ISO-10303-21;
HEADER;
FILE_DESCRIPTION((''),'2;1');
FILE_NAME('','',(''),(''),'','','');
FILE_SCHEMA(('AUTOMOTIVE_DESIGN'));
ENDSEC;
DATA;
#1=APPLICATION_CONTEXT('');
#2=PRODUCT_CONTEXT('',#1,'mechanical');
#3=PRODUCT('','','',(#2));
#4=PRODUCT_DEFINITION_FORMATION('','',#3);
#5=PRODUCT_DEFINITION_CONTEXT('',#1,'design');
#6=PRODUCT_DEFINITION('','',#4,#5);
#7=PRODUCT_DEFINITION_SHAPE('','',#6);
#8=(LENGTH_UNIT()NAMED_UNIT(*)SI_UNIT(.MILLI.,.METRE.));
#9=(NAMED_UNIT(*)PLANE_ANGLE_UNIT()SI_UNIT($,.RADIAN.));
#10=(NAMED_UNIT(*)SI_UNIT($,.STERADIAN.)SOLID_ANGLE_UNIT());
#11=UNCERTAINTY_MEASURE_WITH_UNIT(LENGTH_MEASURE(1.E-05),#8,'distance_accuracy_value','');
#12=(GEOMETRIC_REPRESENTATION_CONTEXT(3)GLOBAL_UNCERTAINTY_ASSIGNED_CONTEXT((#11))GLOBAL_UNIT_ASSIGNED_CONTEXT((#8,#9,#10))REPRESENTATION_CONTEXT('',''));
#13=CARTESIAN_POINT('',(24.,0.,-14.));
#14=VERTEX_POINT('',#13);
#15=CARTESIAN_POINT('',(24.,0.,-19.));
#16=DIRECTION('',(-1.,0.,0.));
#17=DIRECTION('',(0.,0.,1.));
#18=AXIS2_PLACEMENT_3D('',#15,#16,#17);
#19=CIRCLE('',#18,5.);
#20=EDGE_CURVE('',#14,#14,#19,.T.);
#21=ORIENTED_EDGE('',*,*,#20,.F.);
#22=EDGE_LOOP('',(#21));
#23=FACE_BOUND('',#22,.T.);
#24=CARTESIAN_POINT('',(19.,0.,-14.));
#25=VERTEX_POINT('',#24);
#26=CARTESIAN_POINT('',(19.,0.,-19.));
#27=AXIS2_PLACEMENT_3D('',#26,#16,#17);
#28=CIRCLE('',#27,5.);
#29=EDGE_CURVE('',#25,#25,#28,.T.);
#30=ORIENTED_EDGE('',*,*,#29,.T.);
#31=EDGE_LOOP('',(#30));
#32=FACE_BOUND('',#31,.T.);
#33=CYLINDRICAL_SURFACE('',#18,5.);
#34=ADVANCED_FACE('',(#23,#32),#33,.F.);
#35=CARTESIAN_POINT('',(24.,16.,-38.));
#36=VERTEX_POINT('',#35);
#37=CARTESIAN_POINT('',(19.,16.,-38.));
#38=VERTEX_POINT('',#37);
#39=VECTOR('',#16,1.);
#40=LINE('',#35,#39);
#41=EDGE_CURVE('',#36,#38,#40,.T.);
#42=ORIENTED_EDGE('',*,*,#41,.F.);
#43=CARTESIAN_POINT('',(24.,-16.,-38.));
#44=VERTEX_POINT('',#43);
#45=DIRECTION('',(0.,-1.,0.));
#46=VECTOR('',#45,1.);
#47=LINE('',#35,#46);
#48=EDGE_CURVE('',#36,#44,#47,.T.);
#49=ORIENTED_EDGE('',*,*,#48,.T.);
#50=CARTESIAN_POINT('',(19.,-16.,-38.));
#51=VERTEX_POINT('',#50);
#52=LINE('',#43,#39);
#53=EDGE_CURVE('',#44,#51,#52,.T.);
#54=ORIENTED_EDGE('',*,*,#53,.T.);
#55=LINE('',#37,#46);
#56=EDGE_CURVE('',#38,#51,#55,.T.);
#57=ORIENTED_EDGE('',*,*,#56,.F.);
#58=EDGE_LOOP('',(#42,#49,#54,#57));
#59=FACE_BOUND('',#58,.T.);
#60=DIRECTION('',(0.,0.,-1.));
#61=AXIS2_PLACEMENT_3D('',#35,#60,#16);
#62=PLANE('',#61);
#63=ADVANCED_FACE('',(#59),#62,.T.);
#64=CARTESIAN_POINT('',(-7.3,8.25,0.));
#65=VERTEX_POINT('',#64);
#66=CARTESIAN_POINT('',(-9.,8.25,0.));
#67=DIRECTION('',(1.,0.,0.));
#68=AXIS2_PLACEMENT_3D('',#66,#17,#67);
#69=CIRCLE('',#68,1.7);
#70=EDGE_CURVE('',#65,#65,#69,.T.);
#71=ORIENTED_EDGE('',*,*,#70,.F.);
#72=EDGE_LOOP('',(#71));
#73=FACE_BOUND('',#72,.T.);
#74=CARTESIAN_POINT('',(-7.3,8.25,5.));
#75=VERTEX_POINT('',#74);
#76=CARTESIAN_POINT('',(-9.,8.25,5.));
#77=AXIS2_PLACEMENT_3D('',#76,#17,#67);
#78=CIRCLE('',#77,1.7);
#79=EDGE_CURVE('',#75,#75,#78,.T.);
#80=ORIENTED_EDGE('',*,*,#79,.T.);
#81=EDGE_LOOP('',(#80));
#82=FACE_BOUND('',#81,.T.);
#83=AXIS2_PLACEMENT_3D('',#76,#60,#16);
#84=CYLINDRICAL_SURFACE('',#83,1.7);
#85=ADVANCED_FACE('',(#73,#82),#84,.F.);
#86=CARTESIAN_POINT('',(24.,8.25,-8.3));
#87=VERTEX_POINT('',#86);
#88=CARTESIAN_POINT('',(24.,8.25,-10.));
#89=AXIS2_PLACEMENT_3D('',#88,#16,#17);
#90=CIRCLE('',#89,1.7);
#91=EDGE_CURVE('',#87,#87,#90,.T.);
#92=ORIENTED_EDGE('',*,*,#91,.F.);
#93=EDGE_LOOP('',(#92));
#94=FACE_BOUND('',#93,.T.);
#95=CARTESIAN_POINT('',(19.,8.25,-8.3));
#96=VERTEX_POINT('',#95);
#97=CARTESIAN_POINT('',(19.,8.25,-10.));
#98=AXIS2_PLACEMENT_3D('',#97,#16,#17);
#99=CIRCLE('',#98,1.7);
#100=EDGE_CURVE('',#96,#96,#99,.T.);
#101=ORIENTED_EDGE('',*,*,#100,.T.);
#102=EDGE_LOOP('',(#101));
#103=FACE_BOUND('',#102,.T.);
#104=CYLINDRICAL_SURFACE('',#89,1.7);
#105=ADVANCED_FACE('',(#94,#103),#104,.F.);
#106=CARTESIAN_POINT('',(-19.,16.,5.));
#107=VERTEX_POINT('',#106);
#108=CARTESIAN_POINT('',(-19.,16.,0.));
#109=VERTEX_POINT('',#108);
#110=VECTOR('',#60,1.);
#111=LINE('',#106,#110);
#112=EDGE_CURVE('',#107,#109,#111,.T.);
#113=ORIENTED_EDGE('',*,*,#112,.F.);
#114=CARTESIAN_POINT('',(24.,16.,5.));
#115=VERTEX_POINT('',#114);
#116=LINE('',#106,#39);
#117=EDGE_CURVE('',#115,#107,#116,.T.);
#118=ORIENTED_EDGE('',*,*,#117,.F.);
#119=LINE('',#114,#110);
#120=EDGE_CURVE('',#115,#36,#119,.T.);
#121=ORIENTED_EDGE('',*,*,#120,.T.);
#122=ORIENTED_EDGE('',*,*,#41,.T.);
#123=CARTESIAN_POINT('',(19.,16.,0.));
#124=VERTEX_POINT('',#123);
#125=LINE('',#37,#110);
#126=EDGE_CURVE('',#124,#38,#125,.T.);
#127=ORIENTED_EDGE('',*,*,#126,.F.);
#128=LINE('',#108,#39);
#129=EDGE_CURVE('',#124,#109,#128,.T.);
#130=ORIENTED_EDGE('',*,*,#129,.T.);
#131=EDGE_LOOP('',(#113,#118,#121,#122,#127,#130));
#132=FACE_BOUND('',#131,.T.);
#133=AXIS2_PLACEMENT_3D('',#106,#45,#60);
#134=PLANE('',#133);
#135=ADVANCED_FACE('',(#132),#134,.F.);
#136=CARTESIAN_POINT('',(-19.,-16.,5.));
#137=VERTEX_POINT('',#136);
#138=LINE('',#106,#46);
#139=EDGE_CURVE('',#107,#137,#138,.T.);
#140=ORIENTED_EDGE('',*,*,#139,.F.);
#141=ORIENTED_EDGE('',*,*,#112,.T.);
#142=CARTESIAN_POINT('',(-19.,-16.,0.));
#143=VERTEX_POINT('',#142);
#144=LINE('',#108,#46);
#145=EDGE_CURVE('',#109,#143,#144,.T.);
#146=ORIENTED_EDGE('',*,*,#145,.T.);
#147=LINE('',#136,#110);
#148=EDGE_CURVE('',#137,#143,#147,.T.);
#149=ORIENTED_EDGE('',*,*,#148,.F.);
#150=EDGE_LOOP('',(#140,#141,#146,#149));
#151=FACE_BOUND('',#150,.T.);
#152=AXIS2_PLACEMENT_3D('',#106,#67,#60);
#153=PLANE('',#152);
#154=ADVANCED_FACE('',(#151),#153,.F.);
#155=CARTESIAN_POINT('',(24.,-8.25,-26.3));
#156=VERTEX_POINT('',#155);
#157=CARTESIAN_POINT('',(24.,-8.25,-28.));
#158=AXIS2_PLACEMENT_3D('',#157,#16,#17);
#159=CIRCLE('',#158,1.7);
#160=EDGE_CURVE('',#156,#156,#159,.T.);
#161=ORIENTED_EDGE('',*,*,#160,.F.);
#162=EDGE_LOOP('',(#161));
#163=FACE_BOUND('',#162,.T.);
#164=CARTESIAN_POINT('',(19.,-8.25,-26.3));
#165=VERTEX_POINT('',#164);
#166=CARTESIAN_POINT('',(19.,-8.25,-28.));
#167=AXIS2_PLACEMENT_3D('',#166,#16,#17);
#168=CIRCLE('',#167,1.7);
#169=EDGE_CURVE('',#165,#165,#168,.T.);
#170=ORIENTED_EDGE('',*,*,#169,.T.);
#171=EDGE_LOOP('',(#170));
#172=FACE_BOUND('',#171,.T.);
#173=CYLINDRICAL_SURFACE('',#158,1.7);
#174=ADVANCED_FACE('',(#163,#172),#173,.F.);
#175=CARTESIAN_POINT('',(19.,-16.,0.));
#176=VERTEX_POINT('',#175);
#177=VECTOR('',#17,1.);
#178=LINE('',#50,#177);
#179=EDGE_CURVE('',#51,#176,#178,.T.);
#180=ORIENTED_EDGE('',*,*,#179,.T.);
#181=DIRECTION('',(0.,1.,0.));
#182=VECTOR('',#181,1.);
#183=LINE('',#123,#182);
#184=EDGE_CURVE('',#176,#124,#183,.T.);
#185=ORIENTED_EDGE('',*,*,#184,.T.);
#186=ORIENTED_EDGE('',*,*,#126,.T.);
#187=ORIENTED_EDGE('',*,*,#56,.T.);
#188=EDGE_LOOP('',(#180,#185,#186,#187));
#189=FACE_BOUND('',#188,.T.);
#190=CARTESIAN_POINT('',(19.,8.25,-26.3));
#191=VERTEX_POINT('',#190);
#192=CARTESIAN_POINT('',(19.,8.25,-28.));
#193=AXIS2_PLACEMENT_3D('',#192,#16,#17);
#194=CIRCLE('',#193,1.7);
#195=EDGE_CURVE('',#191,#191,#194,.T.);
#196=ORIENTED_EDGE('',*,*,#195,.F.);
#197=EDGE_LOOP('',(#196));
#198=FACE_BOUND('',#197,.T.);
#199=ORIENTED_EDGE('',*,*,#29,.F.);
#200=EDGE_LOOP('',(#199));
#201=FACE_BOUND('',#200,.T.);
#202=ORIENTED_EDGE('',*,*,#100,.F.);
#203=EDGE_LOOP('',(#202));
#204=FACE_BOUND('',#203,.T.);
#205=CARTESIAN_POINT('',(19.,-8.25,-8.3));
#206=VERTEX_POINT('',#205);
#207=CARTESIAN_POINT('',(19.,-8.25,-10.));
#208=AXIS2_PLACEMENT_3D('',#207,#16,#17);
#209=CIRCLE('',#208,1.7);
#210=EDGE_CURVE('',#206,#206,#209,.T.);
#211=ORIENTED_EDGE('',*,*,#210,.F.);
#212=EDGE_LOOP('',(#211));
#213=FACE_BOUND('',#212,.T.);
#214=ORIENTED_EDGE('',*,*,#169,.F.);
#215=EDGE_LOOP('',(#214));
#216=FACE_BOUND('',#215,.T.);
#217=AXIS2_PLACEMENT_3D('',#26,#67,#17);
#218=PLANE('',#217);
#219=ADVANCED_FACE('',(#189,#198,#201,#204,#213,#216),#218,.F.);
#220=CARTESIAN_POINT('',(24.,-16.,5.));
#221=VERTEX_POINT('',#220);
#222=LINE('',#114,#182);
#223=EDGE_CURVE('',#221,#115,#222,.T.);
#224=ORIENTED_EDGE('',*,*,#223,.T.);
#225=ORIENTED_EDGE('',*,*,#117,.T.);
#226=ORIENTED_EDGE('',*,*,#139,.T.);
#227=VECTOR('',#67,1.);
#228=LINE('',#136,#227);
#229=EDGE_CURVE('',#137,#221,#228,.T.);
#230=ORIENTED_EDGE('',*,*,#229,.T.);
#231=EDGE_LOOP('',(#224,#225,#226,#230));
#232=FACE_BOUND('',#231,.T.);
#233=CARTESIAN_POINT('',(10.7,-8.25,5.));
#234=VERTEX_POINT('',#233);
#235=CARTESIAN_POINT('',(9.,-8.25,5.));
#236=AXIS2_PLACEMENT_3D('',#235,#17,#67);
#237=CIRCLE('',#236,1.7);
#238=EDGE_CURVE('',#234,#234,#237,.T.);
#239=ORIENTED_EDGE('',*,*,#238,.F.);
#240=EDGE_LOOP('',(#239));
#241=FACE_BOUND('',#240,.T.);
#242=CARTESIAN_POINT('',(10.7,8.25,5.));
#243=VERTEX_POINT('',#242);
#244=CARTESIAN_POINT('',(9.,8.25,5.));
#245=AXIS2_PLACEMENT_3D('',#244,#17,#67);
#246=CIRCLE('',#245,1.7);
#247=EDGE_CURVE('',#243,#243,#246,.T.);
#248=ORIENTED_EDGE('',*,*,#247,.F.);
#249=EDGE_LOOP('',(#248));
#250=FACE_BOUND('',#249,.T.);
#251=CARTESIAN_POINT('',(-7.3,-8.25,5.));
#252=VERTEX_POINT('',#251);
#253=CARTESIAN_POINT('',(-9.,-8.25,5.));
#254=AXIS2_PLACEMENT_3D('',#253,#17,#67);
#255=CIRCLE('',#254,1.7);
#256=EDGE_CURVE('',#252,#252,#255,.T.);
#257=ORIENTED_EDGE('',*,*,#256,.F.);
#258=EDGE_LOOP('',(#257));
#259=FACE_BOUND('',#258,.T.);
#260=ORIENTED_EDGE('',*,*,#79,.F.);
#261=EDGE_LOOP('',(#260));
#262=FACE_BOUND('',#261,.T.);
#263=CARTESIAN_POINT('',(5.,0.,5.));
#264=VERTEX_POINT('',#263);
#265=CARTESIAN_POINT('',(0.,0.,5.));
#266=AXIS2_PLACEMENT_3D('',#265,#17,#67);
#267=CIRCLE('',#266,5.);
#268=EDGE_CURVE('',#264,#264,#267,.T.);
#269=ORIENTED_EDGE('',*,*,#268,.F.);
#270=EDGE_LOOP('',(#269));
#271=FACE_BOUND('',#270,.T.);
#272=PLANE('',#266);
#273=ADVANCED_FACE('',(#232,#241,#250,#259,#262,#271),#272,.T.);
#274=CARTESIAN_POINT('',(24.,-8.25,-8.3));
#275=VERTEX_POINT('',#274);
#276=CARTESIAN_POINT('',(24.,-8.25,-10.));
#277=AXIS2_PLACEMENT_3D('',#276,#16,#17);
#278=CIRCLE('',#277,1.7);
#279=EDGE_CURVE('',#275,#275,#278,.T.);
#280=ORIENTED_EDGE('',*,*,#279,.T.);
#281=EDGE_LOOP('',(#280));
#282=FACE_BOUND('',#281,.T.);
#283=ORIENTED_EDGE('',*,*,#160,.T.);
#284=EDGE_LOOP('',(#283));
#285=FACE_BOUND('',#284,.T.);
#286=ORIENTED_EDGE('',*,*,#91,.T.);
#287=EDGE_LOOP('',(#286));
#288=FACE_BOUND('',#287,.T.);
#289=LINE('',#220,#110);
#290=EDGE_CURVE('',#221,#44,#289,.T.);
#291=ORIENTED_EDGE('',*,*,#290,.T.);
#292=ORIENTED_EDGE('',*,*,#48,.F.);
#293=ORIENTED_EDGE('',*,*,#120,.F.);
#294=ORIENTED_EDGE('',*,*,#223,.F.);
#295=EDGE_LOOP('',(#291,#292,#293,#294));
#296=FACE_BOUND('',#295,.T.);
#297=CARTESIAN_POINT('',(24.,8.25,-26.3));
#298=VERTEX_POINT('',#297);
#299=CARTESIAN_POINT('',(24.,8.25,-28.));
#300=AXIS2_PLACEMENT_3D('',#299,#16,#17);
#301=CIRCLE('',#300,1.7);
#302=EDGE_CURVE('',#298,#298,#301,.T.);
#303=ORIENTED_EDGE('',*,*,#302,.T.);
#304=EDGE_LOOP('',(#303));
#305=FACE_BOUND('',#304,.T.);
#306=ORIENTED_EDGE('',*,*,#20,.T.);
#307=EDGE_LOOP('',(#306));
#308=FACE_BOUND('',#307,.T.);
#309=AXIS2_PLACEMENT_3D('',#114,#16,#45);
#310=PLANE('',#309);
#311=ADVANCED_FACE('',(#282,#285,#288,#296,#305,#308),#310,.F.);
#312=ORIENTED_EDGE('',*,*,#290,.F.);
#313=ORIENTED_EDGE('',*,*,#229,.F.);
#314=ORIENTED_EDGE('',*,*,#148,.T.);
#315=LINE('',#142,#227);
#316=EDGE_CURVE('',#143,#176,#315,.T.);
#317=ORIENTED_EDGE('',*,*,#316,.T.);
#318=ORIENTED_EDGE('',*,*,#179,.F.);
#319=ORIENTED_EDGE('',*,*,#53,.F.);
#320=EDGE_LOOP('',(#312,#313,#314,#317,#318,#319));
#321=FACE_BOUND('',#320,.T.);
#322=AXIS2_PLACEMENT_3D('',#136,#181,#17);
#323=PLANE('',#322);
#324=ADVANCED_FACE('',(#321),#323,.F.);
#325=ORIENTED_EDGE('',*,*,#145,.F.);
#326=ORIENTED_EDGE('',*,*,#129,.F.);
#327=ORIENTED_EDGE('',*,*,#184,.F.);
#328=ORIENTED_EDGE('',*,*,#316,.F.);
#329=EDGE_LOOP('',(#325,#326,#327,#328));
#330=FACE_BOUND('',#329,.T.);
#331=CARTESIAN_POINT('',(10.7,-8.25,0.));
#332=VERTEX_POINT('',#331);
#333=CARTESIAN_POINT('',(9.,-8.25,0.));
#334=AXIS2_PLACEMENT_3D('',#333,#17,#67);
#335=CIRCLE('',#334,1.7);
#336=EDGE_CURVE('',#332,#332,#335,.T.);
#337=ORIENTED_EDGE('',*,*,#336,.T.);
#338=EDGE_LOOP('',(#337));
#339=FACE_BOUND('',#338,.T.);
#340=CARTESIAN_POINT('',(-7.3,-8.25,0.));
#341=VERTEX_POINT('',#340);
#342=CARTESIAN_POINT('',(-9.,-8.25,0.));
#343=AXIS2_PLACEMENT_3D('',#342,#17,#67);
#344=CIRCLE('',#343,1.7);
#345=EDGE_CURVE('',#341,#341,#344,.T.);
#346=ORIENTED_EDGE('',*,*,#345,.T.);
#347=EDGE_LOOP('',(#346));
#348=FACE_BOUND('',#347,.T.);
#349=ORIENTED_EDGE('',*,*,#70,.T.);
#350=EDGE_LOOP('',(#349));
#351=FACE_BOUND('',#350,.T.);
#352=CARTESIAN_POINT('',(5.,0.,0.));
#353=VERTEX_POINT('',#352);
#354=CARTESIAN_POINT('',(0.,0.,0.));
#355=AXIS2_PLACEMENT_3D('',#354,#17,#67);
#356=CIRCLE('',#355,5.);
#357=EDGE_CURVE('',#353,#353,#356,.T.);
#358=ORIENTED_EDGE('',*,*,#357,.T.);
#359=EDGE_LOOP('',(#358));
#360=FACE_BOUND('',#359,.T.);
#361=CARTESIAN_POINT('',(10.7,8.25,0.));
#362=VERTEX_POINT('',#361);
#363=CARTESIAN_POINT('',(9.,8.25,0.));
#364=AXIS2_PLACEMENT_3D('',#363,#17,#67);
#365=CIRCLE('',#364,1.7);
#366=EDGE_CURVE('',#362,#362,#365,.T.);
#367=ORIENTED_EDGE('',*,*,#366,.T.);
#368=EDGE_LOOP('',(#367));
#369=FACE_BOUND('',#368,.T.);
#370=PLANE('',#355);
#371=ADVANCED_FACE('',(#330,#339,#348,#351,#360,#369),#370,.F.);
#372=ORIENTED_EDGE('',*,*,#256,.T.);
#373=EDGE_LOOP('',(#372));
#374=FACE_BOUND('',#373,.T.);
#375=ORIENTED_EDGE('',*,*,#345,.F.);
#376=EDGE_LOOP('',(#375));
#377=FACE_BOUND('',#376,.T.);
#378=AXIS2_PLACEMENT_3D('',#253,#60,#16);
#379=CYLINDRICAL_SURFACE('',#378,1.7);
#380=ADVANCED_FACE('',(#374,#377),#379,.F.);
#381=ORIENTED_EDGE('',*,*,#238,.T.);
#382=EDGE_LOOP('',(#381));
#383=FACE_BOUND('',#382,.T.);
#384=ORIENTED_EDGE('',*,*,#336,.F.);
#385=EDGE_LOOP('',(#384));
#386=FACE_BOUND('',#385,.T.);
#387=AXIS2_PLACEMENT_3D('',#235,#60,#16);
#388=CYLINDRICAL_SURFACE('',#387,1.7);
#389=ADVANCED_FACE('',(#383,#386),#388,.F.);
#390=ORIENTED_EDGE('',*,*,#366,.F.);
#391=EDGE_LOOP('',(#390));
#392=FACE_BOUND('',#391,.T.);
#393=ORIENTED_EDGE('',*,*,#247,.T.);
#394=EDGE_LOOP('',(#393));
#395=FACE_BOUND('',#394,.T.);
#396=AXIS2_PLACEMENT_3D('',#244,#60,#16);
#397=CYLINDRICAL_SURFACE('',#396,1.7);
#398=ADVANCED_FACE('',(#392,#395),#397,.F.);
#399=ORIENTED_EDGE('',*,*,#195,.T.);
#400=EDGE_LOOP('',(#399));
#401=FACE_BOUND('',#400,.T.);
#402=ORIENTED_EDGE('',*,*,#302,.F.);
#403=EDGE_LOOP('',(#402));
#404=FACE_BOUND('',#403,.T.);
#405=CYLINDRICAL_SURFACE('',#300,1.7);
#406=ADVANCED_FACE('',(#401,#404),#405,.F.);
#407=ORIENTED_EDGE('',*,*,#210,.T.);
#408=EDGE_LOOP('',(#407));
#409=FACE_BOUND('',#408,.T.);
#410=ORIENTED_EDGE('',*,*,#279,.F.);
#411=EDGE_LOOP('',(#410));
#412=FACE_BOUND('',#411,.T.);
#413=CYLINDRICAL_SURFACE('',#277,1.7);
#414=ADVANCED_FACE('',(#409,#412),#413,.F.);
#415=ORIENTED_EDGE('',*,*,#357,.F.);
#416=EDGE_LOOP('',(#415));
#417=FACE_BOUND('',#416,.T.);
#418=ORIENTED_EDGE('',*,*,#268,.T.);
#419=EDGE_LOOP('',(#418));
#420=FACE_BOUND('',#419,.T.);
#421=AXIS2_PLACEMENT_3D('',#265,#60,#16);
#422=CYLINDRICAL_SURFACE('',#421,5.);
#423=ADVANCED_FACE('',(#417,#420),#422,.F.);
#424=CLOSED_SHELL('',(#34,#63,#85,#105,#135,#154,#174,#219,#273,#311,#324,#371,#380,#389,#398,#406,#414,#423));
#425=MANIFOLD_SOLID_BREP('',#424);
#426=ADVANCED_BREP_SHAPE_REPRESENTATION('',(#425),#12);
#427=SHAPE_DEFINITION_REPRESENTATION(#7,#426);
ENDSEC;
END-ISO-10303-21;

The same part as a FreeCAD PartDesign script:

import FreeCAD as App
import Part
import Sketcher

V = App.Vector
Q = App.Units.Quantity


def add_polygon(sketch, points):
    """Adds a closed chain of lines whose ends are joined by coincident constraints."""
    first, n = sketch.GeometryCount, len(points)
    for a, b in zip(points, points[1:] + points[:1]):
        sketch.addGeometry(Part.LineSegment(App.Vector(*a, 0), App.Vector(*b, 0)), False)
    for i in range(n):
        sketch.addConstraint(Sketcher.Constraint("Coincident", first + i, 2, first + (i + 1) % n, 1))

doc = App.newDocument("Part")
body = doc.addObject("PartDesign::Body", "Body")

# Sketch on XY plane
sketch1 = body.newObject("Sketcher::SketchObject", "Sketch")
sketch1.AttachmentSupport = (doc.getObject("XY_Plane"), [""])
sketch1.MapMode = "FlatFace"
add_polygon(sketch1, [(-19, 16), (-19, -16), (19, -16), (19, 16)])  # lines 0-3
sketch1.addGeometry(Part.Circle(V(-9, -8.2, 0), V(0, 0, 1), 1.7), False)  # 4
sketch1.addGeometry(Part.Circle(V(9, -8.2, 0), V(0, 0, 1), 1.7), False)  # 5
sketch1.addGeometry(Part.Circle(V(-9, 8.2, 0), V(0, 0, 1), 1.7), False)  # 6
sketch1.addGeometry(Part.Circle(V(0, 0, 0), V(0, 0, 1), 5), False)  # 7
sketch1.addGeometry(Part.Circle(V(9, 8.2, 0), V(0, 0, 1), 1.7), False)  # 8
sketch1.addConstraint([
    Sketcher.Constraint("Vertical", 0),
    Sketcher.Constraint("Horizontal", 1),
    Sketcher.Constraint("Vertical", 2),
    Sketcher.Constraint("Horizontal", 3),
    Sketcher.Constraint("Coincident", 7, 3, -1, 1),
    Sketcher.Constraint("Equal", 4, 5),
    Sketcher.Constraint("Equal", 5, 6),
    Sketcher.Constraint("Equal", 6, 8),
    Sketcher.Constraint("Symmetric", 5, 3, 6, 3, -1, 1),
    Sketcher.Constraint("Symmetric", 4, 3, 8, 3, -1, 1),
    Sketcher.Constraint("Symmetric", 0, 2, 2, 2, -1, 1),
    Sketcher.Constraint("Symmetric", 4, 3, 5, 3, -2),
    Sketcher.Constraint("Diameter", 7, Q("10 mm")),
    Sketcher.Constraint("Diameter", 4, Q("3.4 mm")),
    Sketcher.Constraint("DistanceX", 1, 1, 1, 2, Q("38 mm")),
    Sketcher.Constraint("DistanceY", 0, 2, 0, 1, Q("32 mm")),
    Sketcher.Constraint("DistanceX", 4, 3, -1, 1, Q("9 mm")),
    Sketcher.Constraint("DistanceY", 4, 3, 6, 3, Q("16.5 mm")),
])
pad1 = body.newObject("PartDesign::Pad", "Pad")
pad1.Profile = sketch1
pad1.Length = 5

# Sketch on XY plane
sketch2 = body.newObject("Sketcher::SketchObject", "Sketch001")
sketch2.AttachmentSupport = (doc.getObject("XY_Plane"), [""])
sketch2.MapMode = "FlatFace"
add_polygon(sketch2, [(19, 16), (19, -16), (24, -16), (24, 16)])  # lines 0-3
sketch2.addConstraint([
    Sketcher.Constraint("Vertical", 0),
    Sketcher.Constraint("Horizontal", 1),
    Sketcher.Constraint("Vertical", 2),
    Sketcher.Constraint("Horizontal", 3),
    Sketcher.Constraint("DistanceX", 1, 1, 1, 2, Q("5 mm")),
    Sketcher.Constraint("DistanceY", 0, 2, 0, 1, Q("32 mm")),
    Sketcher.Constraint("DistanceX", -1, 1, 0, 2, Q("19 mm")),
    Sketcher.Constraint("DistanceY", 0, 2, -1, 1, Q("16 mm")),
])
pad2 = body.newObject("PartDesign::Pad", "Pad001")
pad2.Profile = sketch2
pad2.Length = 5
doc.recompute()

datumplane = body.newObject("PartDesign::Plane", "DatumPlane")
datumplane.Placement = App.Placement(V(9.5, 0, -9.5), App.Rotation(V(0.707106781, 0, 0.707106781), V(0, -1, 0), V(0.707106781, 0, -0.707106781), "ZXY"))
mirrored = body.newObject("PartDesign::Mirrored", "Mirrored")
mirrored.Originals = [pad1]
mirrored.MirrorPlane = (datumplane, [""])
body.Tip = mirrored

doc.recompute()
